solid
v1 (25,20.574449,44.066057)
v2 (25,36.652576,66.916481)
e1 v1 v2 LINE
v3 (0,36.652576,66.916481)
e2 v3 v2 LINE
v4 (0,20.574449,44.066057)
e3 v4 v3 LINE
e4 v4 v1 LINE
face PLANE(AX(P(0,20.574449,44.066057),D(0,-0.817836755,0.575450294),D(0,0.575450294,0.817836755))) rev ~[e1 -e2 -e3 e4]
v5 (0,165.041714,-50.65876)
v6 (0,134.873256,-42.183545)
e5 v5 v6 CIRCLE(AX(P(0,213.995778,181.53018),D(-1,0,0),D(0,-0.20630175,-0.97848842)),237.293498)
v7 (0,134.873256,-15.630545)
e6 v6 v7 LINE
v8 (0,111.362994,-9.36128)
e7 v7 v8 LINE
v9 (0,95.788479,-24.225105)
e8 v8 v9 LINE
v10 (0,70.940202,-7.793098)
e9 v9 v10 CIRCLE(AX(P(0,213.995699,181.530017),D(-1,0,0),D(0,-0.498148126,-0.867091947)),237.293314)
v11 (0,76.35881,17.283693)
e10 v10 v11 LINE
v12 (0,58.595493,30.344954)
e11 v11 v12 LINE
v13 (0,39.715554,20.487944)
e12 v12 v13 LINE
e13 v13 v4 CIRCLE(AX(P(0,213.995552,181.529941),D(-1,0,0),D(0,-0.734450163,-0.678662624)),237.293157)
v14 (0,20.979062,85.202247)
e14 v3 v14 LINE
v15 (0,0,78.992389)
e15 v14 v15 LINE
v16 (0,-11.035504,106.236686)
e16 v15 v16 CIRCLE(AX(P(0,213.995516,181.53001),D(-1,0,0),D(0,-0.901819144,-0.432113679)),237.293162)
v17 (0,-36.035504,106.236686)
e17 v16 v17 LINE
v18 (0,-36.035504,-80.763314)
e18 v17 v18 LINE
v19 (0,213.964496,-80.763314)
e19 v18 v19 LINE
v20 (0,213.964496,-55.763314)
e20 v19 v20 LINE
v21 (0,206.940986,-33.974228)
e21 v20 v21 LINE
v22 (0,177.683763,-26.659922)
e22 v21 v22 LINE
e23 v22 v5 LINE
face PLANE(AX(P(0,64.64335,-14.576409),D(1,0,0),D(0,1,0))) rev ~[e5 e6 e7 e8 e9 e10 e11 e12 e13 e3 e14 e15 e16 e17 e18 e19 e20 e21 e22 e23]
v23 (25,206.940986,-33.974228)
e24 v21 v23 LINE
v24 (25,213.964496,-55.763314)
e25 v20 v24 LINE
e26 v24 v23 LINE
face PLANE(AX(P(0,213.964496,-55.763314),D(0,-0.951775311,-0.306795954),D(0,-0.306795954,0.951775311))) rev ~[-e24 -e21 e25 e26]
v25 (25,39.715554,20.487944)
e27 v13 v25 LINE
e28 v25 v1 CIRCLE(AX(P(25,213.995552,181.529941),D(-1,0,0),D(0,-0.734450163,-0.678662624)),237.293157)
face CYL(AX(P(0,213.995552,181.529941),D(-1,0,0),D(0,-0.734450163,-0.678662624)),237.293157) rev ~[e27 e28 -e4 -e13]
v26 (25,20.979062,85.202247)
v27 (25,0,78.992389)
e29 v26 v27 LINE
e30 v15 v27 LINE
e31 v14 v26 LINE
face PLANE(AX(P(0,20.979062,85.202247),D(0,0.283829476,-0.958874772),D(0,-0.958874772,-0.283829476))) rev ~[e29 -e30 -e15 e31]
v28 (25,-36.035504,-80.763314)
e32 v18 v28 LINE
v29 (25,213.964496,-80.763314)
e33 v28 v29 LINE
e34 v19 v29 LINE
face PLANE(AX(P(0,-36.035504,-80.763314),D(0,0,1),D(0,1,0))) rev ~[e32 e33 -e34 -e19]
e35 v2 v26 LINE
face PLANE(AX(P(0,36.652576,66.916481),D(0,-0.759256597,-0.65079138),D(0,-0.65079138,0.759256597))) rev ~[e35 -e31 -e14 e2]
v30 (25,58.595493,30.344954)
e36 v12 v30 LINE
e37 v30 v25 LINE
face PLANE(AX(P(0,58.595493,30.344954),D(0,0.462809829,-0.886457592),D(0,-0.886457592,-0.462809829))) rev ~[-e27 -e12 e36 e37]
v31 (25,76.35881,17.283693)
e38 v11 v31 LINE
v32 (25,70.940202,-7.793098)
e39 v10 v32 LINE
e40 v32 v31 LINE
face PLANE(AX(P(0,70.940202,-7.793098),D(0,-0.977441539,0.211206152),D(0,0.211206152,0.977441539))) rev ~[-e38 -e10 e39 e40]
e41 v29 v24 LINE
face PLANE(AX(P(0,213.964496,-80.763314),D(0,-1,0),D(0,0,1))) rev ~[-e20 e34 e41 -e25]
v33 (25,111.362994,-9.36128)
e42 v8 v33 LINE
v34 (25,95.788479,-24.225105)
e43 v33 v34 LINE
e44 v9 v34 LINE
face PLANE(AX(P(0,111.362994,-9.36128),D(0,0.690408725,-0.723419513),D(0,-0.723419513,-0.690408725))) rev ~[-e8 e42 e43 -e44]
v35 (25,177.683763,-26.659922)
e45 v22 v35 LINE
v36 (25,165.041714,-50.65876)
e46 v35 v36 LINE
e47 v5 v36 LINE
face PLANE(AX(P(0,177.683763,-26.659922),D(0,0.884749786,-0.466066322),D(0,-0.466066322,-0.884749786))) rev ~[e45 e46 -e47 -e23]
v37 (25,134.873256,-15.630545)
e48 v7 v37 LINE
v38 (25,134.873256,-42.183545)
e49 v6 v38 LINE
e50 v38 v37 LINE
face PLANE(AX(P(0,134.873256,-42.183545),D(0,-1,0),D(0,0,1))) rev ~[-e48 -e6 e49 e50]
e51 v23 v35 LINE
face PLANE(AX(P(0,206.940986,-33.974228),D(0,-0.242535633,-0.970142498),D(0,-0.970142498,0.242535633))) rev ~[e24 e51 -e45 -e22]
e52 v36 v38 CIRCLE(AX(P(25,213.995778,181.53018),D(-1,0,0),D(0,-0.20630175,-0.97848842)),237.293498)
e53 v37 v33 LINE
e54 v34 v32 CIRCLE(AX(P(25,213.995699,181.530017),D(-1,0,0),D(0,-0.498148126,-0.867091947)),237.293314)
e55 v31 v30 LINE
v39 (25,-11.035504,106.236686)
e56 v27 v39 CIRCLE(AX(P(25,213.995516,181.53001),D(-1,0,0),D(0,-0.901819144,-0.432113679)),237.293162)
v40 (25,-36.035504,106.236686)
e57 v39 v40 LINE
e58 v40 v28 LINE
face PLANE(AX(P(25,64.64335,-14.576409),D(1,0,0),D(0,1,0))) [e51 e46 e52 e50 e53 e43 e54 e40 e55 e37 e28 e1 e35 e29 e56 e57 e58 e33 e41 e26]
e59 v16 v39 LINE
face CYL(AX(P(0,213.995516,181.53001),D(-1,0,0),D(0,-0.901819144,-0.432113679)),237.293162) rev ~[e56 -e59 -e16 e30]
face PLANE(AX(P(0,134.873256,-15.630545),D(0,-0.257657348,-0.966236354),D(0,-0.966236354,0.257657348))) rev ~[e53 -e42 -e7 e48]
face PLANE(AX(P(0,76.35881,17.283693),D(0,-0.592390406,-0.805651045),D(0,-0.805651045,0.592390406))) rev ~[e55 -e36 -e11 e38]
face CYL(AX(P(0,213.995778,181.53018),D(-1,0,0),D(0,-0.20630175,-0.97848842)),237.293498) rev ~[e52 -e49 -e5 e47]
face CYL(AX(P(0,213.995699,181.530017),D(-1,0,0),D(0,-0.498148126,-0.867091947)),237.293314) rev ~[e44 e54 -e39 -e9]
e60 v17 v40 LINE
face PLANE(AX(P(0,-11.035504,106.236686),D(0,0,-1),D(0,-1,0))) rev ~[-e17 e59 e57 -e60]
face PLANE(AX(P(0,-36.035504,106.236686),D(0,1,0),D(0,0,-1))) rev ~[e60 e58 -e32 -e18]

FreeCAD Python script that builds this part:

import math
import FreeCAD as App
import Part
import Sketcher

doc = App.newDocument("Part")
body = doc.addObject("PartDesign::Body", "Body")

sketch1 = body.newObject("Sketcher::SketchObject", "Sketch")
sketch1.AttachmentSupport = (doc.getObject("YZ_Plane"), [""])
sketch1.MapMode = "FlatFace"
sketch1.addGeometry(Part.LineSegment(App.Vector(-36, 106, 0), App.Vector(-36, -81, 0)), False)
sketch1.addGeometry(Part.LineSegment(App.Vector(-36, -81, 0), App.Vector(214, -81, 0)), False)
sketch1.addGeometry(Part.LineSegment(App.Vector(214, -81, 0), App.Vector(214, -56, 0)), False)
sketch1.addGeometry(Part.LineSegment(App.Vector(214, -56, 0), App.Vector(207, -34, 0)), False)
sketch1.addGeometry(Part.LineSegment(App.Vector(207, -34, 0), App.Vector(178, -27, 0)), False)
sketch1.addGeometry(Part.LineSegment(App.Vector(178, -27, 0), App.Vector(165, -51, 0)), False)
sketch1.addGeometry(Part.ArcOfCircle(Part.Circle(App.Vector(214, 182, 0), App.Vector(0, 0, 1), 237), math.radians(-109.48), math.radians(-101.91)), False)
sketch1.addGeometry(Part.LineSegment(App.Vector(135, -42, 0), App.Vector(135, -16, 0)), False)
sketch1.addGeometry(Part.LineSegment(App.Vector(135, -16, 0), App.Vector(111, -9, 0)), False)
sketch1.addGeometry(Part.LineSegment(App.Vector(111, -9, 0), App.Vector(96, -24, 0)), False)
sketch1.addGeometry(Part.ArcOfCircle(Part.Circle(App.Vector(214, 182, 0), App.Vector(0, 0, 1), 237), math.radians(-127.08), math.radians(-119.88)), False)
sketch1.addGeometry(Part.LineSegment(App.Vector(71, -8, 0), App.Vector(76, 17, 0)), False)
sketch1.addGeometry(Part.LineSegment(App.Vector(76, 17, 0), App.Vector(59, 30, 0)), False)
sketch1.addGeometry(Part.LineSegment(App.Vector(59, 30, 0), App.Vector(40, 20, 0)), False)
sketch1.addGeometry(Part.ArcOfCircle(Part.Circle(App.Vector(214, 182, 0), App.Vector(0, 0, 1), 237), math.radians(-144.6), math.radians(-137.26)), False)
sketch1.addGeometry(Part.LineSegment(App.Vector(21, 44, 0), App.Vector(37, 67, 0)), False)
sketch1.addGeometry(Part.LineSegment(App.Vector(37, 67, 0), App.Vector(21, 85, 0)), False)
sketch1.addGeometry(Part.LineSegment(App.Vector(21, 85, 0), App.Vector(0, 79, 0)), False)
sketch1.addGeometry(Part.ArcOfCircle(Part.Circle(App.Vector(214, 182, 0), App.Vector(0, 0, 1), 237), math.radians(-161.5), math.radians(-154.4)), False)
sketch1.addGeometry(Part.LineSegment(App.Vector(-11, 106, 0), App.Vector(-36, 106, 0)), False)
sketch1.addConstraint(Sketcher.Constraint("Coincident", 0, 2, 1, 1))
sketch1.addConstraint(Sketcher.Constraint("Coincident", 1, 2, 2, 1))
sketch1.addConstraint(Sketcher.Constraint("Coincident", 2, 2, 3, 1))
sketch1.addConstraint(Sketcher.Constraint("Coincident", 3, 2, 4, 1))
sketch1.addConstraint(Sketcher.Constraint("Coincident", 4, 2, 5, 1))
sketch1.addConstraint(Sketcher.Constraint("Coincident", 5, 2, 6, 2))
sketch1.addConstraint(Sketcher.Constraint("Coincident", 6, 1, 7, 1))
sketch1.addConstraint(Sketcher.Constraint("Coincident", 7, 2, 8, 1))
sketch1.addConstraint(Sketcher.Constraint("Coincident", 8, 2, 9, 1))
sketch1.addConstraint(Sketcher.Constraint("Coincident", 9, 2, 10, 2))
sketch1.addConstraint(Sketcher.Constraint("Coincident", 10, 1, 11, 1))
sketch1.addConstraint(Sketcher.Constraint("Coincident", 11, 2, 12, 1))
sketch1.addConstraint(Sketcher.Constraint("Coincident", 12, 2, 13, 1))
sketch1.addConstraint(Sketcher.Constraint("Coincident", 13, 2, 14, 2))
sketch1.addConstraint(Sketcher.Constraint("Coincident", 14, 1, 15, 1))
sketch1.addConstraint(Sketcher.Constraint("Coincident", 15, 2, 16, 1))
sketch1.addConstraint(Sketcher.Constraint("Coincident", 16, 2, 17, 1))
sketch1.addConstraint(Sketcher.Constraint("Coincident", 17, 2, 18, 2))
sketch1.addConstraint(Sketcher.Constraint("Coincident", 18, 1, 19, 1))
sketch1.addConstraint(Sketcher.Constraint("Coincident", 19, 2, 0, 1))
sketch1.addConstraint(Sketcher.Constraint("Vertical", 0))
sketch1.addConstraint(Sketcher.Constraint("Horizontal", 1))
sketch1.addConstraint(Sketcher.Constraint("Vertical", 2))
sketch1.addConstraint(Sketcher.Constraint("Vertical", 7))
sketch1.addConstraint(Sketcher.Constraint("Horizontal", 19))
sketch1.addConstraint(Sketcher.Constraint("PointOnObject", 17, 2, -2))
sketch1.addConstraint(Sketcher.Constraint("Equal", 19, 2))
sketch1.addConstraint(Sketcher.Constraint("DistanceX", 1, 1, 1, 2, 250.0))
sketch1.addConstraint(Sketcher.Constraint("DistanceX", 19, 2, 19, 1, 25.0))
sketch1.addConstraint(Sketcher.Constraint("DistanceY", 0, 2, 0, 1, 187.0))
sketch1.addConstraint(Sketcher.Constraint("Radius", 6, 237.293498))
sketch1.addConstraint(Sketcher.Constraint("DistanceY", 7, 1, 7, 2, 26.553))
sketch1.addConstraint(Sketcher.Constraint("Radius", 18, 237.293162))
sketch1.addConstraint(Sketcher.Constraint("Distance", 5, 27.125))
sketch1.addConstraint(Sketcher.Constraint("Radius", 10, 237.293314))
sketch1.addConstraint(Sketcher.Constraint("Radius", 14, 237.293157))
sketch1.addConstraint(Sketcher.Constraint("Distance", 3, 22.893099))
sketch1.addConstraint(Sketcher.Constraint("Distance", 12, 22.048401))
sketch1.addConstraint(Sketcher.Constraint("DistanceX", -1, 1, 10, 3, 213.995699))
sketch1.addConstraint(Sketcher.Constraint("DistanceX", -1, 1, 10, 1, 70.940202))
sketch1.addConstraint(Sketcher.Constraint("DistanceY", 10, 1, -1, 1, 7.793098))
sketch1.addConstraint(Sketcher.Constraint("DistanceX", 12, 2, 8, 2, 52.767501))
sketch1.addConstraint(Sketcher.Constraint("DistanceY", 7, 2, 12, 2, 45.975499))
sketch1.addConstraint(Sketcher.Constraint("Distance", 11, 25.655541))
sketch1.addConstraint(Sketcher.Constraint("Distance", 15, 27.94008))
sketch1.addConstraint(Sketcher.Constraint("DistanceX", -1, 1, 6, 3, 213.995778))
sketch1.addConstraint(Sketcher.Constraint("DistanceY", -1, 1, 6, 3, 181.53018))
sketch1.addConstraint(Sketcher.Constraint("DistanceX", -1, 1, 14, 3, 213.995552))
sketch1.addConstraint(Sketcher.Constraint("DistanceY", -1, 1, 14, 3, 181.529941))
sketch1.addConstraint(Sketcher.Constraint("DistanceY", -1, 1, 18, 3, 181.53001))
sketch1.addConstraint(Sketcher.Constraint("DistanceY", 5, 2, -1, 1, 50.65876))
sketch1.addConstraint(Sketcher.Constraint("DistanceY", 8, 2, -1, 1, 9.36128))
sketch1.addConstraint(Sketcher.Constraint("DistanceX", -1, 1, 9, 2, 95.788479))
sketch1.addConstraint(Sketcher.Constraint("DistanceX", -1, 1, 11, 2, 76.35881))
sketch1.addConstraint(Sketcher.Constraint("DistanceX", -1, 1, 14, 1, 20.574449))
sketch1.addConstraint(Sketcher.Constraint("DistanceY", -1, 1, 15, 2, 66.916481))
sketch1.addConstraint(Sketcher.Constraint("DistanceX", -1, 1, 16, 2, 20.979062))
sketch1.addConstraint(Sketcher.Constraint("DistanceY", -1, 1, 17, 2, 78.992389))
sketch1.addConstraint(Sketcher.Constraint("DistanceX", 0, 2, 18, 3, 250.03102))
sketch1.addConstraint(Sketcher.Constraint("DistanceX", 3, 2, 2, 2, 7.02351))
sketch1.addConstraint(Sketcher.Constraint("DistanceY", 2, 2, 4, 2, 29.103392))
sketch1.addConstraint(Sketcher.Constraint("DistanceX", 6, 1, 5, 2, 30.168458))
sketch1.addConstraint(Sketcher.Constraint("DistanceX", 13, 2, 12, 2, 18.879939))
sketch1.addConstraint(Sketcher.Constraint("DistanceY", 14, 1, 16, 2, 41.13619))
pad1 = body.newObject("PartDesign::Pad", "Pad")
pad1.Profile = sketch1
pad1.Length = 25

doc.recompute()
